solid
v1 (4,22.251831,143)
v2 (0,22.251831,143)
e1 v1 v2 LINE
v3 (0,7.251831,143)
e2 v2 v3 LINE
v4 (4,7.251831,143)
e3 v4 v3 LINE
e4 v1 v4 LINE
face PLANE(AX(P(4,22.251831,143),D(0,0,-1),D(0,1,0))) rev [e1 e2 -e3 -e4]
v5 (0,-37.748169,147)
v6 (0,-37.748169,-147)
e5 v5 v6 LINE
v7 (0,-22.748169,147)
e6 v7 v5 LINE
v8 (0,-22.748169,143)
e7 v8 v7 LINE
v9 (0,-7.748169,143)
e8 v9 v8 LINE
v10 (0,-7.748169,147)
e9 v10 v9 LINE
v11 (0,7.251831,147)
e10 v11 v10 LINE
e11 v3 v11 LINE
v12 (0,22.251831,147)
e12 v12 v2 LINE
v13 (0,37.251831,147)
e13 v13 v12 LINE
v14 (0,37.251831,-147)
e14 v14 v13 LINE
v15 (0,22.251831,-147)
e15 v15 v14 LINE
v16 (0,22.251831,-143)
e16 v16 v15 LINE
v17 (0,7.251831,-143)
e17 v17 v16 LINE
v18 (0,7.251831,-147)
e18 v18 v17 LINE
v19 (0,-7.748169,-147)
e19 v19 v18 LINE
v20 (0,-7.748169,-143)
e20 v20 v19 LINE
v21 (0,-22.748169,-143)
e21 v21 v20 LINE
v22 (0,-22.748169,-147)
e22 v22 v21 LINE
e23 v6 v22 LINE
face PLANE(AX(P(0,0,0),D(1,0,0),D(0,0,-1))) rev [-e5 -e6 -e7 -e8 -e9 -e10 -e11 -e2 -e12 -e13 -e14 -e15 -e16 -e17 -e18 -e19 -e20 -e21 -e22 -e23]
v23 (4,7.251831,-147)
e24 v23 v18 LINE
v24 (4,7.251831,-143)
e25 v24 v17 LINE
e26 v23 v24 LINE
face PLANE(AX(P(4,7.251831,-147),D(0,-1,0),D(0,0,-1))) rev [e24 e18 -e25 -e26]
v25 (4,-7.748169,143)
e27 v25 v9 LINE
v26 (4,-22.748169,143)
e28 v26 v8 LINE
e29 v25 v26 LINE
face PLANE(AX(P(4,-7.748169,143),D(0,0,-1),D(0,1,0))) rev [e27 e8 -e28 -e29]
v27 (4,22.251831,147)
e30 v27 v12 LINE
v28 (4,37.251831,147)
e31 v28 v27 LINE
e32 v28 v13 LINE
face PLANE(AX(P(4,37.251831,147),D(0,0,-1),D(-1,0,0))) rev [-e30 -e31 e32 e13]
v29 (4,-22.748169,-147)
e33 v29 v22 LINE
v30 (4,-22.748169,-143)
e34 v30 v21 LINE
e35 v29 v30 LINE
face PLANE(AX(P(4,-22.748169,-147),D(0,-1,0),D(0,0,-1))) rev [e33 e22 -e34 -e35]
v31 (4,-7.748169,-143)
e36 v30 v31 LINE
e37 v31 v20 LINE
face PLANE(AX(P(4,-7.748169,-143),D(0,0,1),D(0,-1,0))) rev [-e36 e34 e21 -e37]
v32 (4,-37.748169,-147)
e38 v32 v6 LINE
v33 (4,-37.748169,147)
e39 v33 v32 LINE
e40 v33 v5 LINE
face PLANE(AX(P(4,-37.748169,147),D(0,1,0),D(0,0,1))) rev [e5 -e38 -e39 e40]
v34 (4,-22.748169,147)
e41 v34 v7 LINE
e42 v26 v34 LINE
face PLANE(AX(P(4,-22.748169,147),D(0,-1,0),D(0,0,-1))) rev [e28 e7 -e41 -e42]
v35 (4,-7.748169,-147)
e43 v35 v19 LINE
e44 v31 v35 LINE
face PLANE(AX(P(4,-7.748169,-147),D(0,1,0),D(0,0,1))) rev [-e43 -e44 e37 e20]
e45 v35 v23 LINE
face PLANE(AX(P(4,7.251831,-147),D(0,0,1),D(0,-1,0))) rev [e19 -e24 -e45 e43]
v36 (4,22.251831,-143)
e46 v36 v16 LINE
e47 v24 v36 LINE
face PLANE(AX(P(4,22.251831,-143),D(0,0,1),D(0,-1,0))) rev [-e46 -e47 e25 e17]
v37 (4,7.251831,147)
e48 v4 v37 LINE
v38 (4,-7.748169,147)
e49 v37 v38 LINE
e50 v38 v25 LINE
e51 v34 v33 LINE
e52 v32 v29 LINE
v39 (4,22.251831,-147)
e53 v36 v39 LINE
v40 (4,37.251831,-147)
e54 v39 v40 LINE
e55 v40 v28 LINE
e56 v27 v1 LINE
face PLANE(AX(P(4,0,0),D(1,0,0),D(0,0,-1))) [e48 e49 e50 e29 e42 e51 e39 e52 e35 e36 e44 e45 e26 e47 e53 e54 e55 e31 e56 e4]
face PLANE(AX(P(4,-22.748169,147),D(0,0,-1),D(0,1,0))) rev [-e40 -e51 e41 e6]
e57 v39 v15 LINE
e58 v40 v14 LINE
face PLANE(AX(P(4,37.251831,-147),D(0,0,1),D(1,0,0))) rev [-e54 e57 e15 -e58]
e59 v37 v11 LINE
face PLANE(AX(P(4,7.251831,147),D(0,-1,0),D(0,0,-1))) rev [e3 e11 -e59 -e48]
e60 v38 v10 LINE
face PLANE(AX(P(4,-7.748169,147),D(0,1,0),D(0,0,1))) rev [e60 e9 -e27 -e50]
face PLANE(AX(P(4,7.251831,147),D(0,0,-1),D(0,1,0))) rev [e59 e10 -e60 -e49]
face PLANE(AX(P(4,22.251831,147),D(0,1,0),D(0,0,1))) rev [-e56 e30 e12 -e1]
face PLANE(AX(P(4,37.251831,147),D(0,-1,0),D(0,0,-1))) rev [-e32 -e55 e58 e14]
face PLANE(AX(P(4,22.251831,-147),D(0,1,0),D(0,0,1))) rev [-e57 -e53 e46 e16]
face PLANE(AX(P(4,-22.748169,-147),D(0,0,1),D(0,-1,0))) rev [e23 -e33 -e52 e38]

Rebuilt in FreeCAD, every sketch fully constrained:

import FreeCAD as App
import Part
import Sketcher

V = App.Vector
Q = App.Units.Quantity


def add_polygon(sketch, points):
    """Adds a closed chain of lines whose ends are joined by coincident constraints."""
    first, n = sketch.GeometryCount, len(points)
    for a, b in zip(points, points[1:] + points[:1]):
        sketch.addGeometry(Part.LineSegment(App.Vector(*a, 0), App.Vector(*b, 0)), False)
    for i in range(n):
        sketch.addConstraint(Sketcher.Constraint("Coincident", first + i, 2, first + (i + 1) % n, 1))

doc = App.newDocument("Part")
body = doc.addObject("PartDesign::Body", "Body")

# Sketch on YZ plane
sketch1 = body.newObject("Sketcher::SketchObject", "Sketch")
sketch1.AttachmentSupport = (doc.getObject("YZ_Plane"), [""])
sketch1.MapMode = "FlatFace"
add_polygon(sketch1, [(37.3, -147), (37.3, 147), (22.3, 147), (22.3, 143), (7.3, 143), (7.3, 147), (-7.7, 147), (-7.7, 143), (-22.7, 143), (-22.7, 147), (-37.7, 147), (-37.7, -147), (-22.7, -147), (-22.7, -143), (-7.7, -143), (-7.7, -147), (7.3, -147), (7.3, -143), (22.3, -143), (22.3, -147)])  # lines 0-19
sketch1.addConstraint([
    Sketcher.Constraint("Vertical", 0),
    Sketcher.Constraint("Horizontal", 1),
    Sketcher.Constraint("Vertical", 2),
    Sketcher.Constraint("Horizontal", 3),
    Sketcher.Constraint("Vertical", 4),
    Sketcher.Constraint("Horizontal", 5),
    Sketcher.Constraint("Vertical", 6),
    Sketcher.Constraint("Horizontal", 7),
    Sketcher.Constraint("Vertical", 8),
    Sketcher.Constraint("Horizontal", 9),
    Sketcher.Constraint("Vertical", 10),
    Sketcher.Constraint("Horizontal", 11),
    Sketcher.Constraint("Vertical", 12),
    Sketcher.Constraint("Horizontal", 13),
    Sketcher.Constraint("Vertical", 14),
    Sketcher.Constraint("Horizontal", 15),
    Sketcher.Constraint("Vertical", 16),
    Sketcher.Constraint("Horizontal", 17),
    Sketcher.Constraint("Vertical", 18),
    Sketcher.Constraint("Horizontal", 19),
    Sketcher.Constraint("Symmetric", 8, 2, 11, 2, -1),
    Sketcher.Constraint("Symmetric", 6, 2, 13, 2, -1),
    Sketcher.Constraint("Symmetric", 4, 2, 15, 2, -1),
    Sketcher.Constraint("Symmetric", 2, 2, 17, 2, -1),
    Sketcher.Constraint("Horizontal", 1, 2, 4, 2),
    Sketcher.Constraint("Horizontal", 3, 2, 6, 2),
    Sketcher.Constraint("Horizontal", 5, 2, 8, 2),
    Sketcher.Constraint("Horizontal", 15, 2, 18, 2),
    Sketcher.Constraint("Equal", 1, 3),
    Sketcher.Constraint("Equal", 3, 5),
    Sketcher.Constraint("Equal", 5, 7),
    Sketcher.Constraint("Equal", 7, 9),
    Sketcher.Constraint("DistanceX", 1, 2, 1, 1, Q("15 mm")),
    Sketcher.Constraint("DistanceY", 0, 1, 0, 2, Q("294 mm")),
    Sketcher.Constraint("DistanceY", 2, 2, 2, 1, Q("4 mm")),
    Sketcher.Constraint("DistanceX", -1, 1, 0, 2, Q("37.251831 mm")),
])
pad1 = body.newObject("PartDesign::Pad", "Pad")
pad1.Profile = sketch1
pad1.Length = 4

doc.recompute()
